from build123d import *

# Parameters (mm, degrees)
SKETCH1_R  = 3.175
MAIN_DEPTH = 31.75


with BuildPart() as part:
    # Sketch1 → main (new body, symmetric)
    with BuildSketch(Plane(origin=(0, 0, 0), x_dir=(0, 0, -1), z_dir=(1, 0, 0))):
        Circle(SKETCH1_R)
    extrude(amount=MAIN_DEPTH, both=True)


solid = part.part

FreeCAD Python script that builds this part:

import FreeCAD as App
import Part
import Sketcher

V = App.Vector
Q = App.Units.Quantity

doc = App.newDocument("Part")
body = doc.addObject("PartDesign::Body", "Body")

# Sketch on YZ plane
sketch1 = body.newObject("Sketcher::SketchObject", "Sketch")
sketch1.AttachmentSupport = (doc.getObject("YZ_Plane"), [""])
sketch1.MapMode = "FlatFace"
sketch1.addGeometry(Part.Circle(V(0, 0, 0), V(0, 0, 1), 3.2), False)
sketch1.addConstraint([
    Sketcher.Constraint("Coincident", 0, 3, -1, 1),
    Sketcher.Constraint("Diameter", 0, Q("0.25 in")),
])
pad1 = body.newObject("PartDesign::Pad", "Pad")
pad1.Profile = sketch1
pad1.Length = Q("2.5 in")
pad1.Midplane = True

doc.recompute()
